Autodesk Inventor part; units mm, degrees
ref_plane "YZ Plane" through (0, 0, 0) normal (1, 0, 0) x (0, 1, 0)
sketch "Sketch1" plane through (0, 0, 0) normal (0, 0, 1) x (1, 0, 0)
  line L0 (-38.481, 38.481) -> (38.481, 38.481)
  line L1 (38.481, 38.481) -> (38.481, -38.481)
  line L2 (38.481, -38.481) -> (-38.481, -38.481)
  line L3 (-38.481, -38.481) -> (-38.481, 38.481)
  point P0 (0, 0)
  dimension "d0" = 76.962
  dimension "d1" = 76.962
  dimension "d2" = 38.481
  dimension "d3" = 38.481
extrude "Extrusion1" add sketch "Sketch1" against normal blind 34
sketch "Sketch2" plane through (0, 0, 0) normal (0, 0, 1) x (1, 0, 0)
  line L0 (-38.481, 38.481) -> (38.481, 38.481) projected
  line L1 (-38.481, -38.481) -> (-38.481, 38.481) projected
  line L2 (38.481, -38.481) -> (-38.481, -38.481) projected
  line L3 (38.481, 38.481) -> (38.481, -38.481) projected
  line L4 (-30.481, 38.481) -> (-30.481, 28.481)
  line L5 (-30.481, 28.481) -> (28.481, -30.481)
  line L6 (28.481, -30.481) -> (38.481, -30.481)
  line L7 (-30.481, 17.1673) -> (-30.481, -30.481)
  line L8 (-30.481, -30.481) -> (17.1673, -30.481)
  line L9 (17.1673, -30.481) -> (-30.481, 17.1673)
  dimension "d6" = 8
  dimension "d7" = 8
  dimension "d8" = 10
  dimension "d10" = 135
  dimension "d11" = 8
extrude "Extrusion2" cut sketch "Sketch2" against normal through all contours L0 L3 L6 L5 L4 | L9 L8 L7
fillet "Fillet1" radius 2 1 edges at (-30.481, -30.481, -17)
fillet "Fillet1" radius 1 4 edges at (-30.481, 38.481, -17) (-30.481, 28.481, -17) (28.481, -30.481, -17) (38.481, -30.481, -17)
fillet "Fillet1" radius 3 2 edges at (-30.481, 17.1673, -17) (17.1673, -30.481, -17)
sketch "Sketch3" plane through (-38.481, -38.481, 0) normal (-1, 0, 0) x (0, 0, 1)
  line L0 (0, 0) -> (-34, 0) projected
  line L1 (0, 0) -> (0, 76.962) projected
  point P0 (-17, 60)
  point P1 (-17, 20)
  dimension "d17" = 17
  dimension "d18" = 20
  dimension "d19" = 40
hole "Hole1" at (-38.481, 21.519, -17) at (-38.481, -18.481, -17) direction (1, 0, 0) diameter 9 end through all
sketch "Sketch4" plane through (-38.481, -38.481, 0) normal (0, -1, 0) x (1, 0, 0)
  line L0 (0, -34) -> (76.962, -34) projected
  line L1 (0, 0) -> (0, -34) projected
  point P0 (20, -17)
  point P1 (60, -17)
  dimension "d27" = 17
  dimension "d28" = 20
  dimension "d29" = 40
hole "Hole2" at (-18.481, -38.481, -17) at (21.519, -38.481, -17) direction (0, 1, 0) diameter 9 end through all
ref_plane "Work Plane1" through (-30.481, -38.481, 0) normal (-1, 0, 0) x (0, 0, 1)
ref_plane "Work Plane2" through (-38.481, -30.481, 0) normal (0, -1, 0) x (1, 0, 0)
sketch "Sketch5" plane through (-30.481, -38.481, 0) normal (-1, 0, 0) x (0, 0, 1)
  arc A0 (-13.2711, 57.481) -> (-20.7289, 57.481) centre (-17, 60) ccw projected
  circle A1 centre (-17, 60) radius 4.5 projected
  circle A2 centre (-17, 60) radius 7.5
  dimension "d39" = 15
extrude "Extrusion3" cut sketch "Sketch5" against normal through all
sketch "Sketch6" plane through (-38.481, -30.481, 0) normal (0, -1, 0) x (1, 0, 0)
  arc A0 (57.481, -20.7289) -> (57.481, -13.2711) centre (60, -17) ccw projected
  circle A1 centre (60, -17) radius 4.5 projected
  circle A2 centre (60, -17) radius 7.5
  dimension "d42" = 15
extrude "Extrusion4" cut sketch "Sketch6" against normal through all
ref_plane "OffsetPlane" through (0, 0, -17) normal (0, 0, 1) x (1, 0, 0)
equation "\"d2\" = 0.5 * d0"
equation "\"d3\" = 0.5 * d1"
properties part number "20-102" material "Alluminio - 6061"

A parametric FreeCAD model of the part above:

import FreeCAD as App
import Part
import Sketcher
Q = App.Units.Quantity


def edges_at(feature, points):
    """Names of the edges that pass closest to the given points."""
    edges = feature.Shape.Edges
    near = lambda p: min(range(len(edges)), key=lambda i: edges[i].distToShape(Part.Vertex(*p))[0])
    return sorted({f"Edge{near(p) + 1}" for p in points})

doc = App.newDocument("Part")
params = doc.addObject("Spreadsheet::Sheet", "Params")
for row, (alias, value) in enumerate([
    ("pad1_length", "34 mm"),
    ("sketch2_width", "10 mm"),
    ("fillet_radius", "2 mm"),
    ("fillet2_radius", "1 mm"),
    ("fillet3_radius", "3 mm"),
    ("sketch3_diameter", "9 mm"),
    ("hole_diameter", "9 mm"),
    ("sketch4_diameter", "9 mm"),
    ("hole2_diameter", "9 mm"),
    ("sketch5_diameter", "15 mm"),
    ("sketch5_diameter2", "9 mm"),
    ("sketch6_diameter", "15 mm"),
    ("sketch6_diameter2", "9 mm"),
], start=1):
    params.set(f"A{row}", alias)
    params.set(f"B{row}", "=" + value)
    params.setAlias(f"B{row}", alias)

body = doc.addObject("PartDesign::Body", "Body")

sketch1 = body.newObject("Sketcher::SketchObject", "Sketch")
sketch1.AttachmentSupport = (doc.getObject("XY_Plane"), [""])
sketch1.MapMode = "FlatFace"
sketch1.addGeometry([
    Part.LineSegment(App.Vector(38, 38, 0), App.Vector(-38, 38, 0)),
    Part.LineSegment(App.Vector(-38, 38, 0), App.Vector(-38, -38, 0)),
    Part.LineSegment(App.Vector(-38, -38, 0), App.Vector(38, -38, 0)),
    Part.LineSegment(App.Vector(38, -38, 0), App.Vector(38, 38, 0)),
], False)
sketch1.addConstraint([
    Sketcher.Constraint("Coincident", 0, 2, 1, 1),
    Sketcher.Constraint("Coincident", 1, 2, 2, 1),
    Sketcher.Constraint("Coincident", 2, 2, 3, 1),
    Sketcher.Constraint("Coincident", 3, 2, 0, 1),
    Sketcher.Constraint("Horizontal", 0),
    Sketcher.Constraint("Vertical", 1),
    Sketcher.Constraint("Horizontal", 2),
    Sketcher.Constraint("Vertical", 3),
    Sketcher.Constraint("Symmetric", 0, 2, 2, 2, -1, 1),
    Sketcher.Constraint("Equal", 2, 1),
    Sketcher.Constraint("DistanceX", 0, 2, 0, 1, Q("76.962 mm")),
])
pad1 = body.newObject("PartDesign::Pad", "Pad")
pad1.Profile = sketch1
pad1.setExpression("Length", "Params.pad1_length")
pad1.Reversed = True

sketch2 = body.newObject("Sketcher::SketchObject", "Sketch001")
sketch2.AttachmentSupport = (doc.getObject("XY_Plane"), [""])
sketch2.MapMode = "FlatFace"
sketch2.addGeometry([
    Part.LineSegment(App.Vector(38, 38, 0), App.Vector(-30, 38, 0)),
    Part.LineSegment(App.Vector(-30, 38, 0), App.Vector(-30, 28, 0)),
    Part.LineSegment(App.Vector(-30, 28, 0), App.Vector(28, -30, 0)),
    Part.LineSegment(App.Vector(28, -30, 0), App.Vector(38, -30, 0)),
    Part.LineSegment(App.Vector(38, -30, 0), App.Vector(38, 38, 0)),
    Part.LineSegment(App.Vector(17, -30, 0), App.Vector(-30, 17, 0)),
    Part.LineSegment(App.Vector(-30, 17, 0), App.Vector(-30, -30, 0)),
    Part.LineSegment(App.Vector(-30, -30, 0), App.Vector(17, -30, 0)),
], False)
sketch2.addConstraint([
    Sketcher.Constraint("Coincident", 0, 2, 1, 1),
    Sketcher.Constraint("Coincident", 1, 2, 2, 1),
    Sketcher.Constraint("Coincident", 2, 2, 3, 1),
    Sketcher.Constraint("Coincident", 3, 2, 4, 1),
    Sketcher.Constraint("Coincident", 4, 2, 0, 1),
    Sketcher.Constraint("Coincident", 5, 2, 6, 1),
    Sketcher.Constraint("Coincident", 6, 2, 7, 1),
    Sketcher.Constraint("Coincident", 7, 2, 5, 1),
    Sketcher.Constraint("Horizontal", 0),
    Sketcher.Constraint("Vertical", 1),
    Sketcher.Constraint("Horizontal", 3),
    Sketcher.Constraint("Vertical", 4),
    Sketcher.Constraint("Vertical", 6),
    Sketcher.Constraint("Horizontal", 7),
    Sketcher.Constraint("Parallel", 2, 5),
    Sketcher.Constraint("Horizontal", 3, 2, 6, 2),
    Sketcher.Constraint("Vertical", 1, 2, 5, 2),
    Sketcher.Constraint("Equal", 3, 1),
    Sketcher.Constraint("Equal", 0, 4),
    Sketcher.Constraint("DistanceX", 3, 1, 3, 2, Q("10 mm")),
    Sketcher.Constraint("DistanceX", 0, 2, 0, 1, Q("68.962 mm")),
    Sketcher.Constraint("DistanceX", 7, 1, 7, 2, Q("47.6483 mm")),
    Sketcher.Constraint("DistanceX", 0, 2, -1, 1, Q("30.481 mm")),
    Sketcher.Constraint("DistanceY", -1, 1, 0, 2, Q("38.481 mm")),
])
sketch2.setExpression("Constraints[19]", "Params.sketch2_width")
pocket1 = body.newObject("PartDesign::Pocket", "Pocket")
pocket1.Profile = sketch2
pocket1.Type = "ThroughAll"
doc.recompute()

fillet = body.newObject("PartDesign::Fillet", "Fillet")
fillet.Base = (pocket1, edges_at(pocket1, [(-30.481, -30.481, -17)]))
fillet.setExpression("Radius", "Params.fillet_radius")
doc.recompute()

fillet2 = body.newObject("PartDesign::Fillet", "Fillet001")
fillet2.Base = (fillet, edges_at(fillet, [
    (-30.481, 38.481, -17),
    (-30.481, 28.481, -17),
    (28.481, -30.481, -17),
    (38.481, -30.481, -17),
]))
fillet2.setExpression("Radius", "Params.fillet2_radius")
doc.recompute()

fillet3 = body.newObject("PartDesign::Fillet", "Fillet002")
fillet3.Base = (fillet2, edges_at(fillet2, [(-30.481, 17.167, -17), (17.167, -30.481, -17)]))
fillet3.setExpression("Radius", "Params.fillet3_radius")

sketch3 = body.newObject("Sketcher::SketchObject", "Sketch002")
sketch3.AttachmentSupport = (doc.getObject("YZ_Plane"), [""])
sketch3.MapMode = "FlatFace"
sketch3.AttachmentOffset = App.Placement(App.Vector(0, 0, -38.481), App.Rotation())
sketch3.addGeometry([
    Part.Circle(App.Vector(21.5, -17, 0), App.Vector(0, 0, 1), 4.5),
    Part.Circle(App.Vector(-18.5, -17, 0), App.Vector(0, 0, 1), 4.5),
], False)
sketch3.addConstraint([
    Sketcher.Constraint("Equal", 0, 1),
    Sketcher.Constraint("Horizontal", 0, 3, 1, 3),
    Sketcher.Constraint("Diameter", 0, Q("9 mm")),
    Sketcher.Constraint("DistanceY", 0, 3, -1, 1, Q("17 mm")),
    Sketcher.Constraint("DistanceX", 1, 3, 0, 3, Q("40 mm")),
    Sketcher.Constraint("DistanceX", -1, 1, 0, 3, Q("21.519 mm")),
])
sketch3.setExpression("Constraints[2]", "Params.sketch3_diameter")
doc.recompute()
hole = body.newObject("PartDesign::Hole", "Hole")
hole.Profile = sketch3
hole.ThreadType = "None"
hole.setExpression("Diameter", "Params.hole_diameter")
hole.DepthType = "ThroughAll"
hole.Reversed = True

sketch4 = body.newObject("Sketcher::SketchObject", "Sketch003")
sketch4.AttachmentSupport = (doc.getObject("XZ_Plane"), [""])
sketch4.MapMode = "FlatFace"
sketch4.AttachmentOffset = App.Placement(App.Vector(0, 0, 38.481), App.Rotation())
sketch4.addGeometry([
    Part.Circle(App.Vector(-18.5, -17, 0), App.Vector(0, 0, 1), 4.5),
    Part.Circle(App.Vector(21.5, -17, 0), App.Vector(0, 0, 1), 4.5),
], False)
sketch4.addConstraint([
    Sketcher.Constraint("Equal", 0, 1),
    Sketcher.Constraint("Horizontal", 0, 3, 1, 3),
    Sketcher.Constraint("Diameter", 0, Q("9 mm")),
    Sketcher.Constraint("DistanceY", 0, 3, -1, 1, Q("17 mm")),
    Sketcher.Constraint("DistanceX", 0, 3, 1, 3, Q("40 mm")),
    Sketcher.Constraint("DistanceX", 0, 3, -1, 1, Q("18.481 mm")),
])
sketch4.setExpression("Constraints[2]", "Params.sketch4_diameter")
doc.recompute()
hole2 = body.newObject("PartDesign::Hole", "Hole001")
hole2.Profile = sketch4
hole2.ThreadType = "None"
hole2.setExpression("Diameter", "Params.hole2_diameter")
hole2.DepthType = "ThroughAll"

sketch5 = body.newObject("Sketcher::SketchObject", "Sketch004")
sketch5.AttachmentSupport = (doc.getObject("YZ_Plane"), [""])
sketch5.MapMode = "FlatFace"
sketch5.AttachmentOffset = App.Placement(App.Vector(0, 0, -30.481), App.Rotation())
sketch5.addGeometry([
    Part.Circle(App.Vector(21.5, -17, 0), App.Vector(0, 0, 1), 7.5),
    Part.Circle(App.Vector(21.5, -17, 0), App.Vector(0, 0, 1), 4.5),
], False)
sketch5.addConstraint([
    Sketcher.Constraint("Coincident", 1, 3, 0, 3),
    Sketcher.Constraint("Diameter", 0, Q("15 mm")),
    Sketcher.Constraint("Diameter", 1, Q("9 mm")),
    Sketcher.Constraint("DistanceY", 0, 3, -1, 1, Q("17 mm")),
    Sketcher.Constraint("DistanceX", -1, 1, 0, 3, Q("21.519 mm")),
])
sketch5.setExpression("Constraints[1]", "Params.sketch5_diameter")
sketch5.setExpression("Constraints[2]", "Params.sketch5_diameter2")
pocket2 = body.newObject("PartDesign::Pocket", "Pocket001")
pocket2.Profile = sketch5
pocket2.Type = "ThroughAll"
pocket2.Reversed = True

sketch6 = body.newObject("Sketcher::SketchObject", "Sketch005")
sketch6.AttachmentSupport = (doc.getObject("XZ_Plane"), [""])
sketch6.MapMode = "FlatFace"
sketch6.AttachmentOffset = App.Placement(App.Vector(0, 0, 30.481), App.Rotation())
sketch6.addGeometry([
    Part.Circle(App.Vector(21.5, -17, 0), App.Vector(0, 0, 1), 7.5),
    Part.Circle(App.Vector(21.5, -17, 0), App.Vector(0, 0, 1), 4.5),
], False)
sketch6.addConstraint([
    Sketcher.Constraint("Coincident", 1, 3, 0, 3),
    Sketcher.Constraint("Diameter", 0, Q("15 mm")),
    Sketcher.Constraint("Diameter", 1, Q("9 mm")),
    Sketcher.Constraint("DistanceY", 0, 3, -1, 1, Q("17 mm")),
    Sketcher.Constraint("DistanceX", -1, 1, 0, 3, Q("21.519 mm")),
])
sketch6.setExpression("Constraints[1]", "Params.sketch6_diameter")
sketch6.setExpression("Constraints[2]", "Params.sketch6_diameter2")
pocket3 = body.newObject("PartDesign::Pocket", "Pocket002")
pocket3.Profile = sketch6
pocket3.Type = "ThroughAll"

doc.recompute()
